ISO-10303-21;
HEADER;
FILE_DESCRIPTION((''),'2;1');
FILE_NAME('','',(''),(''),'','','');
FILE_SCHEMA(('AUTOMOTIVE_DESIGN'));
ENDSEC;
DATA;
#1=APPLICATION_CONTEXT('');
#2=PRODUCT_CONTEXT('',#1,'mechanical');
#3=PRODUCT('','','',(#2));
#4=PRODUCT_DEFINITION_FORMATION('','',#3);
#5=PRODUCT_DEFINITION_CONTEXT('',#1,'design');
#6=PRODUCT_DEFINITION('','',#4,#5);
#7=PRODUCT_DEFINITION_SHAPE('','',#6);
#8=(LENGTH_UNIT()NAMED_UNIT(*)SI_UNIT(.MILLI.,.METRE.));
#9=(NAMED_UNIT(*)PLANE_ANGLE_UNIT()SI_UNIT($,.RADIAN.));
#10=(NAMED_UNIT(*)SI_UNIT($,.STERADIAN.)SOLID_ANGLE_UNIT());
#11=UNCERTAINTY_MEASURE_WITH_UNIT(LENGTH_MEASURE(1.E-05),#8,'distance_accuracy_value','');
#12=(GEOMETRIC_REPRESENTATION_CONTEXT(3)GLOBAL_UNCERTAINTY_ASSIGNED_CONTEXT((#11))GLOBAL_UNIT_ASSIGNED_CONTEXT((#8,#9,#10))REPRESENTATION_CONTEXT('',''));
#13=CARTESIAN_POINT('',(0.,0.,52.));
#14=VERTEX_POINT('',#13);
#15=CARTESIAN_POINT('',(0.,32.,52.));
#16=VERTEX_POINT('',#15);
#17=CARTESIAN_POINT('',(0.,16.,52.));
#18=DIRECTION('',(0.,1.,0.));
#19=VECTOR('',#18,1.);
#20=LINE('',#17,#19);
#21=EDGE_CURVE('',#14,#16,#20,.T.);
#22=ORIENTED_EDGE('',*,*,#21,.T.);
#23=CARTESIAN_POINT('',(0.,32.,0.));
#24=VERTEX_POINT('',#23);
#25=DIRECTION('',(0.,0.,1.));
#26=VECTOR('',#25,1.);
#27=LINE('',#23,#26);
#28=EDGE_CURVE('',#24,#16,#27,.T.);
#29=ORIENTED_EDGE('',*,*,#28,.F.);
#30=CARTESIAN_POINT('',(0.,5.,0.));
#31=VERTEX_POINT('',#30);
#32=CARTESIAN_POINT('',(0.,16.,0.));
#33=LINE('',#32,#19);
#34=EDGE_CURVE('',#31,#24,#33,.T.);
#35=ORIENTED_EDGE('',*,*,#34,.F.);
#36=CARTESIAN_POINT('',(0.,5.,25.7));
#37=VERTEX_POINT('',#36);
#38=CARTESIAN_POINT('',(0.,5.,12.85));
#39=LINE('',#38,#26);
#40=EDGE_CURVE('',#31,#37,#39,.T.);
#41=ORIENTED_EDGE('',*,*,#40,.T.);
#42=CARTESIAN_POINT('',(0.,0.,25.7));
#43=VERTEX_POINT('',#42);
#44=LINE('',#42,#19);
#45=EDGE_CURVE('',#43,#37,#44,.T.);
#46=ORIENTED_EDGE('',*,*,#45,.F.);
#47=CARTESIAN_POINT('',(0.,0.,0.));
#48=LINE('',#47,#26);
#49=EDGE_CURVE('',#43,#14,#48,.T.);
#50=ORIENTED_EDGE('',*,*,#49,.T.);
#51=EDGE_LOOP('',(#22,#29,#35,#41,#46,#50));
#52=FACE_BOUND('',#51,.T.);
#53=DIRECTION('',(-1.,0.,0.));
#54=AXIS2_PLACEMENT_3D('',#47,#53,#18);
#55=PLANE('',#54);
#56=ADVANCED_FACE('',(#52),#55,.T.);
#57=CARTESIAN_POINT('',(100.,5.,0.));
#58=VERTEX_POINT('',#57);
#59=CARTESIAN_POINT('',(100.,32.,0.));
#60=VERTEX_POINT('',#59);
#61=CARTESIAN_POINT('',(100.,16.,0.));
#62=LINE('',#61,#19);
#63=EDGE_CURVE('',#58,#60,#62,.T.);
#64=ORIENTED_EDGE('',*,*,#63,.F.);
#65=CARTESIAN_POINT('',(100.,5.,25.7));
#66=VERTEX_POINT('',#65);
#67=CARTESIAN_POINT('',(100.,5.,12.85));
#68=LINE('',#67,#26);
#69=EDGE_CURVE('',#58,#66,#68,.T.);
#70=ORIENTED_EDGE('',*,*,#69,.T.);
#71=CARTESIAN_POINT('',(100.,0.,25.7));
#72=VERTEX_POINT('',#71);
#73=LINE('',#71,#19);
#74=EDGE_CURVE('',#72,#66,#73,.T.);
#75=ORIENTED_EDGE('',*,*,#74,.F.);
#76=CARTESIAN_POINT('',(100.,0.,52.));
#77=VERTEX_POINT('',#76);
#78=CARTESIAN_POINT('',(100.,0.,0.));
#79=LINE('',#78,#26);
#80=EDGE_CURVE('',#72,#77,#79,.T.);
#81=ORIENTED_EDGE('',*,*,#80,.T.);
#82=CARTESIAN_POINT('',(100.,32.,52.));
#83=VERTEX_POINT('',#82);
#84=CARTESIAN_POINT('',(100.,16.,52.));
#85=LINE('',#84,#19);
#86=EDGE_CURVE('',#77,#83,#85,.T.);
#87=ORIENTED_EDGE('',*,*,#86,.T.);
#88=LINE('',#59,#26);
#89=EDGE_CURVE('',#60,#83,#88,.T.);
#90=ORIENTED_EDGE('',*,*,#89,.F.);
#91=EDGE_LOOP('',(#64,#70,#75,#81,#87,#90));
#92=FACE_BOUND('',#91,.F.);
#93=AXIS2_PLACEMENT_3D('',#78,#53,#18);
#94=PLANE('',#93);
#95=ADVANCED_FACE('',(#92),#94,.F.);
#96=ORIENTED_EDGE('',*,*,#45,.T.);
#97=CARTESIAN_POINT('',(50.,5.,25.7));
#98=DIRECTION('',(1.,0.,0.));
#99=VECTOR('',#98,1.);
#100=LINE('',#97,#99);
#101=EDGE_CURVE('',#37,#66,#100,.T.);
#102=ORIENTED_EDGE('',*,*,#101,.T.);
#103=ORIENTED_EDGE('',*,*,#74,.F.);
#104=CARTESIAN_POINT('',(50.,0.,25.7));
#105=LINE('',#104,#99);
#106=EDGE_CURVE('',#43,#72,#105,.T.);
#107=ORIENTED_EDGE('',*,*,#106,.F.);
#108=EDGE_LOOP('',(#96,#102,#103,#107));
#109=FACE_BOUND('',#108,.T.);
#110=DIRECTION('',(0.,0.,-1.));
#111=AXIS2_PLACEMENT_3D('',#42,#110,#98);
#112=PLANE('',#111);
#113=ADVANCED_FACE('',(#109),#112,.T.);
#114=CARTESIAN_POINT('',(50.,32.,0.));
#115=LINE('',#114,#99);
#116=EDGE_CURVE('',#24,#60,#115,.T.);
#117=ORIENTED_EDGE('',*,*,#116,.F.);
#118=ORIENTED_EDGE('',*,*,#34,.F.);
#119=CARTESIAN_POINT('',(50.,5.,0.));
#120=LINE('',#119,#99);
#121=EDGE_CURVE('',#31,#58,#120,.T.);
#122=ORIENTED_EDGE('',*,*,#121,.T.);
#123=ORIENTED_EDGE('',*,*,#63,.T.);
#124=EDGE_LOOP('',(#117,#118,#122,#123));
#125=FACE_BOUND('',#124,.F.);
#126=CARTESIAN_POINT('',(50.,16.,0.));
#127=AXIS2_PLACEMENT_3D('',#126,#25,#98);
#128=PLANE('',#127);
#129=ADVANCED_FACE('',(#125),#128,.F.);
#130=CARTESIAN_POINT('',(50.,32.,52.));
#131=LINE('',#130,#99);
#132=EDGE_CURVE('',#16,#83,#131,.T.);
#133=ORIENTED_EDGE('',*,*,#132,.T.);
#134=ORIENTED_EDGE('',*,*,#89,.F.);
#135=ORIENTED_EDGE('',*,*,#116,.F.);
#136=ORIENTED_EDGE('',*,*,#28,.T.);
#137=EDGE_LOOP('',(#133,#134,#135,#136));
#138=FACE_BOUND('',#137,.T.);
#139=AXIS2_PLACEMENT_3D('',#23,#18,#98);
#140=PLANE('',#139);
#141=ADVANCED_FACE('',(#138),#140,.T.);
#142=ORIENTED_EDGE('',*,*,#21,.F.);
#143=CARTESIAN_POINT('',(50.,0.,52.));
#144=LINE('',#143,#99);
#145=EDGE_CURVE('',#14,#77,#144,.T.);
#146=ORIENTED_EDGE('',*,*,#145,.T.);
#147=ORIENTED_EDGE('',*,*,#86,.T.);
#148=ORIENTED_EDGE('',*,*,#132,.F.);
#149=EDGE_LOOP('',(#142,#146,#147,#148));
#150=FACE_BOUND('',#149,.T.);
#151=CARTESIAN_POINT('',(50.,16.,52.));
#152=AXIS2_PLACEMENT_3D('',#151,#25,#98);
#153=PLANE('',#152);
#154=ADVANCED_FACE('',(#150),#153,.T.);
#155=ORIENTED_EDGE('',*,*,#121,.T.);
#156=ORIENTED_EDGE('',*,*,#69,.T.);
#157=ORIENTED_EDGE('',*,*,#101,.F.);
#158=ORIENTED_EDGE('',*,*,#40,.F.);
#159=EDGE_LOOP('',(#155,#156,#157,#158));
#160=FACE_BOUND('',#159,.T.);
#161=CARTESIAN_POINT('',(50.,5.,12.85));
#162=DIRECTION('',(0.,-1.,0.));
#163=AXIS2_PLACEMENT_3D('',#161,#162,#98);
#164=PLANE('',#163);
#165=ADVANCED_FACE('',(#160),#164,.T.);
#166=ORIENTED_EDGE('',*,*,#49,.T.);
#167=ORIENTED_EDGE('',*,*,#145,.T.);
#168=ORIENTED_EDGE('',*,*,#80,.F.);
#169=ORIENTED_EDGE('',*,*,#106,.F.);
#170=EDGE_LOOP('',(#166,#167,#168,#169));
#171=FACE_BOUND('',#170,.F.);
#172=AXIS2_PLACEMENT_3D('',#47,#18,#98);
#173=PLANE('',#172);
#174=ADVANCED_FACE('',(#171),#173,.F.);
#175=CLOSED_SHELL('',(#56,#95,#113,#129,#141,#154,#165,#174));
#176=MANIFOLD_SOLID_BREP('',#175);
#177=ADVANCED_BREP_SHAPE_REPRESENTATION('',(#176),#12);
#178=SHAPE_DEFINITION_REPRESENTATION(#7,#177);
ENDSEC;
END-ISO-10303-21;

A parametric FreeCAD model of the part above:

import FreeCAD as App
import Part
import Sketcher

V = App.Vector
Q = App.Units.Quantity

doc = App.newDocument("Part")
params = doc.addObject("Spreadsheet::Sheet", "Params")
for row, (alias, value) in enumerate([
    ("sketch1_width", "100 mm"),
    ("sketch1_height", "32 mm"),
    ("pad1_length", "52 mm"),
    ("sketch2_width", "100 mm"),
    ("sketch2_height", "25.7 mm"),
    ("pocket1_length", "5 mm"),
], start=1):
    params.set(f"A{row}", alias)
    params.set(f"B{row}", "=" + value)
    params.setAlias(f"B{row}", alias)

body = doc.addObject("PartDesign::Body", "Body")

# Sketch on XY plane
sketch1 = body.newObject("Sketcher::SketchObject", "Sketch")
sketch1.AttachmentSupport = (doc.getObject("XY_Plane"), [""])
sketch1.MapMode = "FlatFace"
sketch1.addGeometry([
    Part.LineSegment(V(0, 32, 0), V(0, 0, 0)),
    Part.LineSegment(V(0, 0, 0), V(100, 0, 0)),
    Part.LineSegment(V(100, 0, 0), V(100, 32, 0)),
    Part.LineSegment(V(100, 32, 0), V(0, 32, 0)),
], False)
sketch1.addConstraint([
    Sketcher.Constraint("Coincident", 0, 2, 1, 1),
    Sketcher.Constraint("Coincident", 1, 2, 2, 1),
    Sketcher.Constraint("Coincident", 2, 2, 3, 1),
    Sketcher.Constraint("Coincident", 3, 2, 0, 1),
    Sketcher.Constraint("Vertical", 0),
    Sketcher.Constraint("Horizontal", 1),
    Sketcher.Constraint("Vertical", 2),
    Sketcher.Constraint("Horizontal", 3),
    Sketcher.Constraint("Coincident", 0, 2, -1, 1),
    Sketcher.Constraint("DistanceX", 1, 1, 1, 2, Q("100 mm")),
    Sketcher.Constraint("DistanceY", 0, 2, 0, 1, Q("32 mm")),
])
sketch1.setExpression("Constraints[9]", "Params.sketch1_width")
sketch1.setExpression("Constraints[10]", "Params.sketch1_height")
pad1 = body.newObject("PartDesign::Pad", "Pad")
pad1.Profile = sketch1
pad1.setExpression("Length", "Params.pad1_length")

# Sketch on XZ plane
sketch2 = body.newObject("Sketcher::SketchObject", "Sketch001")
sketch2.AttachmentSupport = (doc.getObject("XZ_Plane"), [""])
sketch2.MapMode = "FlatFace"
sketch2.addGeometry([
    Part.LineSegment(V(0, 25.7, 0), V(0, 0, 0)),
    Part.LineSegment(V(0, 0, 0), V(100, 0, 0)),
    Part.LineSegment(V(100, 0, 0), V(100, 25.7, 0)),
    Part.LineSegment(V(100, 25.7, 0), V(0, 25.7, 0)),
], False)
sketch2.addConstraint([
    Sketcher.Constraint("Coincident", 0, 2, 1, 1),
    Sketcher.Constraint("Coincident", 1, 2, 2, 1),
    Sketcher.Constraint("Coincident", 2, 2, 3, 1),
    Sketcher.Constraint("Coincident", 3, 2, 0, 1),
    Sketcher.Constraint("Vertical", 0),
    Sketcher.Constraint("Horizontal", 1),
    Sketcher.Constraint("Vertical", 2),
    Sketcher.Constraint("Horizontal", 3),
    Sketcher.Constraint("Coincident", 0, 2, -1, 1),
    Sketcher.Constraint("DistanceX", 1, 1, 1, 2, Q("100 mm")),
    Sketcher.Constraint("DistanceY", 0, 2, 0, 1, Q("25.7 mm")),
])
sketch2.setExpression("Constraints[9]", "Params.sketch2_width")
sketch2.setExpression("Constraints[10]", "Params.sketch2_height")
pocket1 = body.newObject("PartDesign::Pocket", "Pocket")
pocket1.Profile = sketch2
pocket1.setExpression("Length", "Params.pocket1_length")

doc.recompute()
